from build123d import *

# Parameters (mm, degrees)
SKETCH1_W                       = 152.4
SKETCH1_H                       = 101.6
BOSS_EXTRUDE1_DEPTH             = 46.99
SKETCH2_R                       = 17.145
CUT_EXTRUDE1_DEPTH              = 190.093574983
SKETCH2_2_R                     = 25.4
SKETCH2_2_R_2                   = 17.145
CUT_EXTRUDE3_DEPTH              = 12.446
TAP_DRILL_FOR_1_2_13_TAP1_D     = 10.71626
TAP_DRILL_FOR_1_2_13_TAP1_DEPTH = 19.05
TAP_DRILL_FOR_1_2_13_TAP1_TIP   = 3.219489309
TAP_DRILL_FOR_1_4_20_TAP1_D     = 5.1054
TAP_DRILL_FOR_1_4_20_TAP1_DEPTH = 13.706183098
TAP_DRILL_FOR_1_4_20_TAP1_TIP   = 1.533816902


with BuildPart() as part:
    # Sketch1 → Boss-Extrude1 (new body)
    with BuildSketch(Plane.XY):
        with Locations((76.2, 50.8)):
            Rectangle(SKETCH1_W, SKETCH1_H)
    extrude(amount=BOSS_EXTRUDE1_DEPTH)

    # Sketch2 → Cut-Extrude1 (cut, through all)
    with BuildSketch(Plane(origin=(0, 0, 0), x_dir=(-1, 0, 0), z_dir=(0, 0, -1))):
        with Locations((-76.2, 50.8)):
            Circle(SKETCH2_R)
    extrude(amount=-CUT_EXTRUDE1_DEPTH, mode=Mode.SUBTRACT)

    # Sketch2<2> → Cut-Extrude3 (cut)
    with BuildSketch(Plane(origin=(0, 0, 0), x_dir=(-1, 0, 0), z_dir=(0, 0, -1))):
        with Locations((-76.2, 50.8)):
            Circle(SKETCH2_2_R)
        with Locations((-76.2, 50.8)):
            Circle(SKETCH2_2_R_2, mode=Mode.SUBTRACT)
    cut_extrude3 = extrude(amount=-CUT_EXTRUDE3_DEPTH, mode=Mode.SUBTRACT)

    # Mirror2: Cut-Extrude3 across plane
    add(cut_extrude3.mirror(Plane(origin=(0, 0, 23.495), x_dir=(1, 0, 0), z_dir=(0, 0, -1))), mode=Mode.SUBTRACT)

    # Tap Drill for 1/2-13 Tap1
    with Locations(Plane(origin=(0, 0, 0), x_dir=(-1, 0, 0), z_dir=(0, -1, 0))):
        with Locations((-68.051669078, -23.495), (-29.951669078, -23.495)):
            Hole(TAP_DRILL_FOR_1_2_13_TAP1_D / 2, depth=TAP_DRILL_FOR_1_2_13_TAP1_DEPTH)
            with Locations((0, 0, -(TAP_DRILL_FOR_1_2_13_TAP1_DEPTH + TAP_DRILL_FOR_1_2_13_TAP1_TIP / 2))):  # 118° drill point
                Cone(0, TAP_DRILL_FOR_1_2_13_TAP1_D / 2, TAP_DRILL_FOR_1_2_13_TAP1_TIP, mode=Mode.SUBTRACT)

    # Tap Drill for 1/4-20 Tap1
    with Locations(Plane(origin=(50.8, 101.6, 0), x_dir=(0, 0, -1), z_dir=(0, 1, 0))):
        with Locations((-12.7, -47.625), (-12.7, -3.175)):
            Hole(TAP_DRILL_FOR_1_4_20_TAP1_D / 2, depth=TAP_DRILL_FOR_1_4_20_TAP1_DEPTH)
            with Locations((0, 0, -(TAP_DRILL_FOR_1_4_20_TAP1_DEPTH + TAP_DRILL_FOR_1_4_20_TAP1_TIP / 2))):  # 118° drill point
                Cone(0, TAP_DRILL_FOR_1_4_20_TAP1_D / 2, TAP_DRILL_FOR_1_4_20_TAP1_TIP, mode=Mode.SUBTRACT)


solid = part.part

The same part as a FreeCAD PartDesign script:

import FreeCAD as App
import Part
import Sketcher

V = App.Vector
Q = App.Units.Quantity


def add_polygon(sketch, points):
    """Adds a closed chain of lines whose ends are joined by coincident constraints."""
    first, n = sketch.GeometryCount, len(points)
    for a, b in zip(points, points[1:] + points[:1]):
        sketch.addGeometry(Part.LineSegment(App.Vector(*a, 0), App.Vector(*b, 0)), False)
    for i in range(n):
        sketch.addConstraint(Sketcher.Constraint("Coincident", first + i, 2, first + (i + 1) % n, 1))

doc = App.newDocument("Part")
params = doc.addObject("Spreadsheet::Sheet", "Params")
for row, (alias, value) in enumerate([
    ("sketch1_width", "6 in"),
    ("sketch1_height", "4 in"),
    ("pad1_length", "1.85 in"),
    ("sketch2_diameter", "1.35 in"),
    ("sketch3_diameter", "2 in"),
    ("sketch3_diameter2", "1.35 in"),
    ("pocket2_length", "0.49 in"),
    ("hole_diameter", "0.4219 in"),
    ("hole_depth", "0.75 in"),
    ("sketch5_diameter", "0.201 in"),
    ("hole2_diameter", "0.201 in"),
    ("hole2_depth", "13.706183 mm"),
], start=1):
    params.set(f"A{row}", alias)
    params.set(f"B{row}", "=" + value)
    params.setAlias(f"B{row}", alias)

body = doc.addObject("PartDesign::Body", "Body")

# Sketch on XY plane
sketch1 = body.newObject("Sketcher::SketchObject", "Sketch")
sketch1.AttachmentSupport = (doc.getObject("XY_Plane"), [""])
sketch1.MapMode = "FlatFace"
add_polygon(sketch1, [(0, 102), (0, 0), (152, 0), (152, 102)])  # lines 0-3
sketch1.addConstraint([
    Sketcher.Constraint("Vertical", 0),
    Sketcher.Constraint("Horizontal", 1),
    Sketcher.Constraint("Vertical", 2),
    Sketcher.Constraint("Horizontal", 3),
    Sketcher.Constraint("Coincident", 0, 2, -1, 1),
    Sketcher.Constraint("DistanceX", 1, 1, 1, 2, Q("6 in")),
    Sketcher.Constraint("DistanceY", 0, 2, 0, 1, Q("4 in")),
])
sketch1.setExpression("Constraints[9]", "Params.sketch1_width")
sketch1.setExpression("Constraints[10]", "Params.sketch1_height")
pad1 = body.newObject("PartDesign::Pad", "Pad")
pad1.Profile = sketch1
pad1.setExpression("Length", "Params.pad1_length")

# Sketch on XY plane
sketch2 = body.newObject("Sketcher::SketchObject", "Sketch001")
sketch2.AttachmentSupport = (doc.getObject("XY_Plane"), [""])
sketch2.MapMode = "FlatFace"
sketch2.addGeometry(Part.Circle(V(76, 51, 0), V(0, 0, 1), 17), False)
sketch2.addConstraint([
    Sketcher.Constraint("Diameter", 0, Q("1.35 in")),
    Sketcher.Constraint("DistanceX", -1, 1, 0, 3, Q("3 in")),
    Sketcher.Constraint("DistanceY", -1, 1, 0, 3, Q("2 in")),
])
sketch2.setExpression("Constraints[0]", "Params.sketch2_diameter")
pocket1 = body.newObject("PartDesign::Pocket", "Pocket")
pocket1.Profile = sketch2
pocket1.Type = "ThroughAll"
pocket1.Reversed = True

# Sketch on XY plane
sketch3 = body.newObject("Sketcher::SketchObject", "Sketch002")
sketch3.AttachmentSupport = (doc.getObject("XY_Plane"), [""])
sketch3.MapMode = "FlatFace"
sketch3.addGeometry([
    Part.Circle(V(76, 51, 0), V(0, 0, 1), 25),
    Part.Circle(V(76, 51, 0), V(0, 0, 1), 17),
], False)
sketch3.addConstraint([
    Sketcher.Constraint("Coincident", 1, 3, 0, 3),
    Sketcher.Constraint("Diameter", 0, Q("2 in")),
    Sketcher.Constraint("Diameter", 1, Q("1.35 in")),
    Sketcher.Constraint("DistanceX", -1, 1, 0, 3, Q("3 in")),
    Sketcher.Constraint("DistanceY", -1, 1, 0, 3, Q("2 in")),
])
sketch3.setExpression("Constraints[1]", "Params.sketch3_diameter")
sketch3.setExpression("Constraints[2]", "Params.sketch3_diameter2")
pocket2 = body.newObject("PartDesign::Pocket", "Pocket001")
pocket2.Profile = sketch3
pocket2.setExpression("Length", "Params.pocket2_length")
pocket2.Reversed = True
doc.recompute()

datumplane = body.newObject("PartDesign::Plane", "DatumPlane")
datumplane.AttachmentSupport = (doc.getObject("XY_Plane"), [""])
datumplane.MapMode = "FlatFace"
datumplane.AttachmentOffset = App.Placement(V(0, 0, 0.925 * 25.4), App.Rotation())
mirrored = body.newObject("PartDesign::Mirrored", "Mirrored")
mirrored.Originals = [pocket2]
mirrored.MirrorPlane = (datumplane, [""])
body.Tip = mirrored

# Sketch on XZ plane
sketch4 = body.newObject("Sketcher::SketchObject", "Sketch003")
sketch4.AttachmentSupport = (doc.getObject("XZ_Plane"), [""])
sketch4.MapMode = "FlatFace"
sketch4.addGeometry([
    Part.Circle(V(68, 23, 0), V(0, 0, 1), 5),
    Part.Circle(V(30, 23, 0), V(0, 0, 1), 5),
], False)
sketch4.addConstraint([
    Sketcher.Constraint("Equal", 0, 1),
    Sketcher.Constraint("Horizontal", 0, 3, 1, 3),
    Sketcher.Constraint("Diameter", 0, Q("0.4219 in")),
    Sketcher.Constraint("DistanceX", 1, 3, 0, 3, Q("1.5 in")),
    Sketcher.Constraint("DistanceY", -1, 1, 0, 3, Q("0.925 in")),
    Sketcher.Constraint("DistanceX", -1, 1, 0, 3, 68.051669),
])
doc.recompute()
hole = body.newObject("PartDesign::Hole", "Hole")
hole.Profile = sketch4
hole.ThreadType = "None"
hole.setExpression("Diameter", "Params.hole_diameter")
hole.DepthType = "Dimension"
hole.setExpression("Depth", "Params.hole_depth")
hole.DrillPoint = "Angled"
hole.DrillPointAngle = 118

# Sketch on XZ plane
sketch5 = body.newObject("Sketcher::SketchObject", "Sketch004")
sketch5.AttachmentSupport = (doc.getObject("XZ_Plane"), [""])
sketch5.MapMode = "FlatFace"
sketch5.AttachmentOffset = App.Placement(V(0, 0, -4 * 25.4), App.Rotation())
sketch5.addGeometry([
    Part.Circle(V(98.4, 12.7, 0), V(0, 0, 1), 2.6),
    Part.Circle(V(54, 12.7, 0), V(0, 0, 1), 2.6),
], False)
sketch5.addConstraint([
    Sketcher.Constraint("Equal", 0, 1),
    Sketcher.Constraint("Horizontal", 0, 3, 1, 3),
    Sketcher.Constraint("Diameter", 0, Q("0.201 in")),
    Sketcher.Constraint("DistanceY", -1, 1, 0, 3, Q("0.5 in")),
    Sketcher.Constraint("DistanceX", 1, 3, 0, 3, Q("1.75 in")),
    Sketcher.Constraint("DistanceX", -1, 1, 0, 3, Q("3.875 in")),
])
sketch5.setExpression("Constraints[2]", "Params.sketch5_diameter")
doc.recompute()
hole2 = body.newObject("PartDesign::Hole", "Hole001")
hole2.Profile = sketch5
hole2.ThreadType = "None"
hole2.setExpression("Diameter", "Params.hole2_diameter")
hole2.DepthType = "Dimension"
hole2.setExpression("Depth", "Params.hole2_depth")
hole2.DrillPoint = "Angled"
hole2.DrillPointAngle = 118
hole2.Reversed = True

doc.recompute()
